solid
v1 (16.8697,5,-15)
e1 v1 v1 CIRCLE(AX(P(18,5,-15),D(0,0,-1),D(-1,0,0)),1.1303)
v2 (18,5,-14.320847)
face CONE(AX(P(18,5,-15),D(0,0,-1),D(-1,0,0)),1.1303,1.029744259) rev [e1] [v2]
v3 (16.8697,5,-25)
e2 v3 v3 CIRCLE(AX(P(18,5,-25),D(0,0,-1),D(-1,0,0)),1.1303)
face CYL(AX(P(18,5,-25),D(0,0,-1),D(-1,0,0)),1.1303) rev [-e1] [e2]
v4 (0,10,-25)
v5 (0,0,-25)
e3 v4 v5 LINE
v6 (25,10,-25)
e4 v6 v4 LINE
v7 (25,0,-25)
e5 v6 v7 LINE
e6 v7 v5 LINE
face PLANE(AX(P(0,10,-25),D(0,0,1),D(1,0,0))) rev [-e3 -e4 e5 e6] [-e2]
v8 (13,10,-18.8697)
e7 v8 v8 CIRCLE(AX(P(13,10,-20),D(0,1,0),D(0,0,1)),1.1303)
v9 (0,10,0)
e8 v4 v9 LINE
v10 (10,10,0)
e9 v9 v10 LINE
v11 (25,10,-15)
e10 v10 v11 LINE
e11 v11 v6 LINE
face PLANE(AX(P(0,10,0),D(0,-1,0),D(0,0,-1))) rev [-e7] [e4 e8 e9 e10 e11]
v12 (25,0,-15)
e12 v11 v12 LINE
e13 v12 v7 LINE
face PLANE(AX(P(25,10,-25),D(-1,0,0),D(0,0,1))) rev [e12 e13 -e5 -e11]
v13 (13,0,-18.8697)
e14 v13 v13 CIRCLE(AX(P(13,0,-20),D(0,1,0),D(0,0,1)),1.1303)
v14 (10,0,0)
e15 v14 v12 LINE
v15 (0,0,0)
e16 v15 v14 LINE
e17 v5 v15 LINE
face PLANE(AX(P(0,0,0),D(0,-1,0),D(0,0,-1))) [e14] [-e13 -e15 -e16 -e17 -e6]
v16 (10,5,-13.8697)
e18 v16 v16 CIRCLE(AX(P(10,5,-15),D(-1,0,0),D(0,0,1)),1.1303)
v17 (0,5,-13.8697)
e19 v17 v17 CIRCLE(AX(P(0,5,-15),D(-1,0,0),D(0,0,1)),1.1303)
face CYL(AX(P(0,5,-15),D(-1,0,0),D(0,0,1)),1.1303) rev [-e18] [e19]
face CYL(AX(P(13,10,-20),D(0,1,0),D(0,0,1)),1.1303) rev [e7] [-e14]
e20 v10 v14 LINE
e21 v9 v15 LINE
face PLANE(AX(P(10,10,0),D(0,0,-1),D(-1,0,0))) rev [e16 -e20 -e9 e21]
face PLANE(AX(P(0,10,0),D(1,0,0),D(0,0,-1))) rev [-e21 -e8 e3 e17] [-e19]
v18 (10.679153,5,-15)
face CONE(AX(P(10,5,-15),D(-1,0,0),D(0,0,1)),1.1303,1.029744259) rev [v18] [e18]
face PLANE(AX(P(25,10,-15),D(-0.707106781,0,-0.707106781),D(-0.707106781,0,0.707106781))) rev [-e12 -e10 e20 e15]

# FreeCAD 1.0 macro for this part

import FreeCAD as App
import Part
import Sketcher


def add_polygon(sketch, points):
    """Adds a closed chain of lines whose ends are joined by coincident constraints."""
    first, n = sketch.GeometryCount, len(points)
    for a, b in zip(points, points[1:] + points[:1]):
        sketch.addGeometry(Part.LineSegment(App.Vector(*a, 0), App.Vector(*b, 0)), False)
    for i in range(n):
        sketch.addConstraint(Sketcher.Constraint("Coincident", first + i, 2, first + (i + 1) % n, 1))

doc = App.newDocument("Part")
body = doc.addObject("PartDesign::Body", "Body")

sketch1 = body.newObject("Sketcher::SketchObject", "Sketch")
sketch1.AttachmentSupport = (doc.getObject("XZ_Plane"), [""])
sketch1.MapMode = "FlatFace"
add_polygon(sketch1, [(0, -25), (0, 0), (10, 0), (25, -15), (25, -25)])
sketch1.addConstraint(Sketcher.Constraint("Vertical", 0))
sketch1.addConstraint(Sketcher.Constraint("Horizontal", 1))
sketch1.addConstraint(Sketcher.Constraint("Vertical", 3))
sketch1.addConstraint(Sketcher.Constraint("Horizontal", 4))
sketch1.addConstraint(Sketcher.Constraint("Coincident", 0, 2, -1, 1))
sketch1.addConstraint(Sketcher.Constraint("Equal", 4, 0))
sketch1.addConstraint(Sketcher.Constraint("Equal", 1, 3))
sketch1.addConstraint(Sketcher.Constraint("DistanceX", 1, 1, 1, 2, 10.0))
sketch1.addConstraint(Sketcher.Constraint("DistanceX", 4, 2, 4, 1, 25.0))
pad1 = body.newObject("PartDesign::Pad", "Pad")
pad1.Profile = sketch1
pad1.Length = 10
pad1.Reversed = True

sketch2 = body.newObject("Sketcher::SketchObject", "Sketch001")
sketch2.AttachmentSupport = (doc.getObject("YZ_Plane"), [""])
sketch2.MapMode = "FlatFace"
sketch2.addGeometry(Part.Circle(App.Vector(5, -15, 0), App.Vector(0, 0, 1), 1.1303), False)
sketch2.addConstraint(Sketcher.Constraint("DistanceX", -1, 1, 0, 3, 5.0))
sketch2.addConstraint(Sketcher.Constraint("DistanceY", 0, 3, -1, 1, 15.0))
sketch2.addConstraint(Sketcher.Constraint("Diameter", 0, 2.2606))
doc.recompute()
hole = body.newObject("PartDesign::Hole", "Hole")
hole.Profile = sketch2
hole.ThreadType = "None"
hole.Diameter = 2.2606
hole.DepthType = "Dimension"
hole.Depth = 10
hole.DrillPoint = "Angled"
hole.DrillPointAngle = 118
hole.Reversed = True

sketch3 = body.newObject("Sketcher::SketchObject", "Sketch002")
sketch3.AttachmentSupport = (doc.getObject("XZ_Plane"), [""])
sketch3.MapMode = "FlatFace"
sketch3.AttachmentOffset = App.Placement(App.Vector(0, 0, -10), App.Rotation())
sketch3.addGeometry(Part.Circle(App.Vector(13, -20, 0), App.Vector(0, 0, 1), 1.1303), False)
sketch3.addConstraint(Sketcher.Constraint("DistanceX", -1, 1, 0, 3, 13.0))
sketch3.addConstraint(Sketcher.Constraint("DistanceY", 0, 3, -1, 1, 20.0))
sketch3.addConstraint(Sketcher.Constraint("Diameter", 0, 2.2606))
doc.recompute()
hole2 = body.newObject("PartDesign::Hole", "Hole001")
hole2.Profile = sketch3
hole2.ThreadType = "None"
hole2.Diameter = 2.2606
hole2.DepthType = "Dimension"
hole2.Depth = 10
hole2.DrillPoint = "Angled"
hole2.DrillPointAngle = 118
hole2.Reversed = True

sketch4 = body.newObject("Sketcher::SketchObject", "Sketch003")
sketch4.AttachmentSupport = (doc.getObject("XY_Plane"), [""])
sketch4.MapMode = "FlatFace"
sketch4.AttachmentOffset = App.Placement(App.Vector(0, 0, -25), App.Rotation())
sketch4.addGeometry(Part.Circle(App.Vector(18, 5, 0), App.Vector(0, 0, 1), 1.1303), False)
sketch4.addConstraint(Sketcher.Constraint("DistanceX", -1, 1, 0, 3, 18.0))
sketch4.addConstraint(Sketcher.Constraint("DistanceY", -1, 1, 0, 3, 5.0))
sketch4.addConstraint(Sketcher.Constraint("Diameter", 0, 2.2606))
doc.recompute()
hole3 = body.newObject("PartDesign::Hole", "Hole002")
hole3.Profile = sketch4
hole3.ThreadType = "None"
hole3.Diameter = 2.2606
hole3.DepthType = "Dimension"
hole3.Depth = 10
hole3.DrillPoint = "Angled"
hole3.DrillPointAngle = 118
hole3.Reversed = True

doc.recompute()
